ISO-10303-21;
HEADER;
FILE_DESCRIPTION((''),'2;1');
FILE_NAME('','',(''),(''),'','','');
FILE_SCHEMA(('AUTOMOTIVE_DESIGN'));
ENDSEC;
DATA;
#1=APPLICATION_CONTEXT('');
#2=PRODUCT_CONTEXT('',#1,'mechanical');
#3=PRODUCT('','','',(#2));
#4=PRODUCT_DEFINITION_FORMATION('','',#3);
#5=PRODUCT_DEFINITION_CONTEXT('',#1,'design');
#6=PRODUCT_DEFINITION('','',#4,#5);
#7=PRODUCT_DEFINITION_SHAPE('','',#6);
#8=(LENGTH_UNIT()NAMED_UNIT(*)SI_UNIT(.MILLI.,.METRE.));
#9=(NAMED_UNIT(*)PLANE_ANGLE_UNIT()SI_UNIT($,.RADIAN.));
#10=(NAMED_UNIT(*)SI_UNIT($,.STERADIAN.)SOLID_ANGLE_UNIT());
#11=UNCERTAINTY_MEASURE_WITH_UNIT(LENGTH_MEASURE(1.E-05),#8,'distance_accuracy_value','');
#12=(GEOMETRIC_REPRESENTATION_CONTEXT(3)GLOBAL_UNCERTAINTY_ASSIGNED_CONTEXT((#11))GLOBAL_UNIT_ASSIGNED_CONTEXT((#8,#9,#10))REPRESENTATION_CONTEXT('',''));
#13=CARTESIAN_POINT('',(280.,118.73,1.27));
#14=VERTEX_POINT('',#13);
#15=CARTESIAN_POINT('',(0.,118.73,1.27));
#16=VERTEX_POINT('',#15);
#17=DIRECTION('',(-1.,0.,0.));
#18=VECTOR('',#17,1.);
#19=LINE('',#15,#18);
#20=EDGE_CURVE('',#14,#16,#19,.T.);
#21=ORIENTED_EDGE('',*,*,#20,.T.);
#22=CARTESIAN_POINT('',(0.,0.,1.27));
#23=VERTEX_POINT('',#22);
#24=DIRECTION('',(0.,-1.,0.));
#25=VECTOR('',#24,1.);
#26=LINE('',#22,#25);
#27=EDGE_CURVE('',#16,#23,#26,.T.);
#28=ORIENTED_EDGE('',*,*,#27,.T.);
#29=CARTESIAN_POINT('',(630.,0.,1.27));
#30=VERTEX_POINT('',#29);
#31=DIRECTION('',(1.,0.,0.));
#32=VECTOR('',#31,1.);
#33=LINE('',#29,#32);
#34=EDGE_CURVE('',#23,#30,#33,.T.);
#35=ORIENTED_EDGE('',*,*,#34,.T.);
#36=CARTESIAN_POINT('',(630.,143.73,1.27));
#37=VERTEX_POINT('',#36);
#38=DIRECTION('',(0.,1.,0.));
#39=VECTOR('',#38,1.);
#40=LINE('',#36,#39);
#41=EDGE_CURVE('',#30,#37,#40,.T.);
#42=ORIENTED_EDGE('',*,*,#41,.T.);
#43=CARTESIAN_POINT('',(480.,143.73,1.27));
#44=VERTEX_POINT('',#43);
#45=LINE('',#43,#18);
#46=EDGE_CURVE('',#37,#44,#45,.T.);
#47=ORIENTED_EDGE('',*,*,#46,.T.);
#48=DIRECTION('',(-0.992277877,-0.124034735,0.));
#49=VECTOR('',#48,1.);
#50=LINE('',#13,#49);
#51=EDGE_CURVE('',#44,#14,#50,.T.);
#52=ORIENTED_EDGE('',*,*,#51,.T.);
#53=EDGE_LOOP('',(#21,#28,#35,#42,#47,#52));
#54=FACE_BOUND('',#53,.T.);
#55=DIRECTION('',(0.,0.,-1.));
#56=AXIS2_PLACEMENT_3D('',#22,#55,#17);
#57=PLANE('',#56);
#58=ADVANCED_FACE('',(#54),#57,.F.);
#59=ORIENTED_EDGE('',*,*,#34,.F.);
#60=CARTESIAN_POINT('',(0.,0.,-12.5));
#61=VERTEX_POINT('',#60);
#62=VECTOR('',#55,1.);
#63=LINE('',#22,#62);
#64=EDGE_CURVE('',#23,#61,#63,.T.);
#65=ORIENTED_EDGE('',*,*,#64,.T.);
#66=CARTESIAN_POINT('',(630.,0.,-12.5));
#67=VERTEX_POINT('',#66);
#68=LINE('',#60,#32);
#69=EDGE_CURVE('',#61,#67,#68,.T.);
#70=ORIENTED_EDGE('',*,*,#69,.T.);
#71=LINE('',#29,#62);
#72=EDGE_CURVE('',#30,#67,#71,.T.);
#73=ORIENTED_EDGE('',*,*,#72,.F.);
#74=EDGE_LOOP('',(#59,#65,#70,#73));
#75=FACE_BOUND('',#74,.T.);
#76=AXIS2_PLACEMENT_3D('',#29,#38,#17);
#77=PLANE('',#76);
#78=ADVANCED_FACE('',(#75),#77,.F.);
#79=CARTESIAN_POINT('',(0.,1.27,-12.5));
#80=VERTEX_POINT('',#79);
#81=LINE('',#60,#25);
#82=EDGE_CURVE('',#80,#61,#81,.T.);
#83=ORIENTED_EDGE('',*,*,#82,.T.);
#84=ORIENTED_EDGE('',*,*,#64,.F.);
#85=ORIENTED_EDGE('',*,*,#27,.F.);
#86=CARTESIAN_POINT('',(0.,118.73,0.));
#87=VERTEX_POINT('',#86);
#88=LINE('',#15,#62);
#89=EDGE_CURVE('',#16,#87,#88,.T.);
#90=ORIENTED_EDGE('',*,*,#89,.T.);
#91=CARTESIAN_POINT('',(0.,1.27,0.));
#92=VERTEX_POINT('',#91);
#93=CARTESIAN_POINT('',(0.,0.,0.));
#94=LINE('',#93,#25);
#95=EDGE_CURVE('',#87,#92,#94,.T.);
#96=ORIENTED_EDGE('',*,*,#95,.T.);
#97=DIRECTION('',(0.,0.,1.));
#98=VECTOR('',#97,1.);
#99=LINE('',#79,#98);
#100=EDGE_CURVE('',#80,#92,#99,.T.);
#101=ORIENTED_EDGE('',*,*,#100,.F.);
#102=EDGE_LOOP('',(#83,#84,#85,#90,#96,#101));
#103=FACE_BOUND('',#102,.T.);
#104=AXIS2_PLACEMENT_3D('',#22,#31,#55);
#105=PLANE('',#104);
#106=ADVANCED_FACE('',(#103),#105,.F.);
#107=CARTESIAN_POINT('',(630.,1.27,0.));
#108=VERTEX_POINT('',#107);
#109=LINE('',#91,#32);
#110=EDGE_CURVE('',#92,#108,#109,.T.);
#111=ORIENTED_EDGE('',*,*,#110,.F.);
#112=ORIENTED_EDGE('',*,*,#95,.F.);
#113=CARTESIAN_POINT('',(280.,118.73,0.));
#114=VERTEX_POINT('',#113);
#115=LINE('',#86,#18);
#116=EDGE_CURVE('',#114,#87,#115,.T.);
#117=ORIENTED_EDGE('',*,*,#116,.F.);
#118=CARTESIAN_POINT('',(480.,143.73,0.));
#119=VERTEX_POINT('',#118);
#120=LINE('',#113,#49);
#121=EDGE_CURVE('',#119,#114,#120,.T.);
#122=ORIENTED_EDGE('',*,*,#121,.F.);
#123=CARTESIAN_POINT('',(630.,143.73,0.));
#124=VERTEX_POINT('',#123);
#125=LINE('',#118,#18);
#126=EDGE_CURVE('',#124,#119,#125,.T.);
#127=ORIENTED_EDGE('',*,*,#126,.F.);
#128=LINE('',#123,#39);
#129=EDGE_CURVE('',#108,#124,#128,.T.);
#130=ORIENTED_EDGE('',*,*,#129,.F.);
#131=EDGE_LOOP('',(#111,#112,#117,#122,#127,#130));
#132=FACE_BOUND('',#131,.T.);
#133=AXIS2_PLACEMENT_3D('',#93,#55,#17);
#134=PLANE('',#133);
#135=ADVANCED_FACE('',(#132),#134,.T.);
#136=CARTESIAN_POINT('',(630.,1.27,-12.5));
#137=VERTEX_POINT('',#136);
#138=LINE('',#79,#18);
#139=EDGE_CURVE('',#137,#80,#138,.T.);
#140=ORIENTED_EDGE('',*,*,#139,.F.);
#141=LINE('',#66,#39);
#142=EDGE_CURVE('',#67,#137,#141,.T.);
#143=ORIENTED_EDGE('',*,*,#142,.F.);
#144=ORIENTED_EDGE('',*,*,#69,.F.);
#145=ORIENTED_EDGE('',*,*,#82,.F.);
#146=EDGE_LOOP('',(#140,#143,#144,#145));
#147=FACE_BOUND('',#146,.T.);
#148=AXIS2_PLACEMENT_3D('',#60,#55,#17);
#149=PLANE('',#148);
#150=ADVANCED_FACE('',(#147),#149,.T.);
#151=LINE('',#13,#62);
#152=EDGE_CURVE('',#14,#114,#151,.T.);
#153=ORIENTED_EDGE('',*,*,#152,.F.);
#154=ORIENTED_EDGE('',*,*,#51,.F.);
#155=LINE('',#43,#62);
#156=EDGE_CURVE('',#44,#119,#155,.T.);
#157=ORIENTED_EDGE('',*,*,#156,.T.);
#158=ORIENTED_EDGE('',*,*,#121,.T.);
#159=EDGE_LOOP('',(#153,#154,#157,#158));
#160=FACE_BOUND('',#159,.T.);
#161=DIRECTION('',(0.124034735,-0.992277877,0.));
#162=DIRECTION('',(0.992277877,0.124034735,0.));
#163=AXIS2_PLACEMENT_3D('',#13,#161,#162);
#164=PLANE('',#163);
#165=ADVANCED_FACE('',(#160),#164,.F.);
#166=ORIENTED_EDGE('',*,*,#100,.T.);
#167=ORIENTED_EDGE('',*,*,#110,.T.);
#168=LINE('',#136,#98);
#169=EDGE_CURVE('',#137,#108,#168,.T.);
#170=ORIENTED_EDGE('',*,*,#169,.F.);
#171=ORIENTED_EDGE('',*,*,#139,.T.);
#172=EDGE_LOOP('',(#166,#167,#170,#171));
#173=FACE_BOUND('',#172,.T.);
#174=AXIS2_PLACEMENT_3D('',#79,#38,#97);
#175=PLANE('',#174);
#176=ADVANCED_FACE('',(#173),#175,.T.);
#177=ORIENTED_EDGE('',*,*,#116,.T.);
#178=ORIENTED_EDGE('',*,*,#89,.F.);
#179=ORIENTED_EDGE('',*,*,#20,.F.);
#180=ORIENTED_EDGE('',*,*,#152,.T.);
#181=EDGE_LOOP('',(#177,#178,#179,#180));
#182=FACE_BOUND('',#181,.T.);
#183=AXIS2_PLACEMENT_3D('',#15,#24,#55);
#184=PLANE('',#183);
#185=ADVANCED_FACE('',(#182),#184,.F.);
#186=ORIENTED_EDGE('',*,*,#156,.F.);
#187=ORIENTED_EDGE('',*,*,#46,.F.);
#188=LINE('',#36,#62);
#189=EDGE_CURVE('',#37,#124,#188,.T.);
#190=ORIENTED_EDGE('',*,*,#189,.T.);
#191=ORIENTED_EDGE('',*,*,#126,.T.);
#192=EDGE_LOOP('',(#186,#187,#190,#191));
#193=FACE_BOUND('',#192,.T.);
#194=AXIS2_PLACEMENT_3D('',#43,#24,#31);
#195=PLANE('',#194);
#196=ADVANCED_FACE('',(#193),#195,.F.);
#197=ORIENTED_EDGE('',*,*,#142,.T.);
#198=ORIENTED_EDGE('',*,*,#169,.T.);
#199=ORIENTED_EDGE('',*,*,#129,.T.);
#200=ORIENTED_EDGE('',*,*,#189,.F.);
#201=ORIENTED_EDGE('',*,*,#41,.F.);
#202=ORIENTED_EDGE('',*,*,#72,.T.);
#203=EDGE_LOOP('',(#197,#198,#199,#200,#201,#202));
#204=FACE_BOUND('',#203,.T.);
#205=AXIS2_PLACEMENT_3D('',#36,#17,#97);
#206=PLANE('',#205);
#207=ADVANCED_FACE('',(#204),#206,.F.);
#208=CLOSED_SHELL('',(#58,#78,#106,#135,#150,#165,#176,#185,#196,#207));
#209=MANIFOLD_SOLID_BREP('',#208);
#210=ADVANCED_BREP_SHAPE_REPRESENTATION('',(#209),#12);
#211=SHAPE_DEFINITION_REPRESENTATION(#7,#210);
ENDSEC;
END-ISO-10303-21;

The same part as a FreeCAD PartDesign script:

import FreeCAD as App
import Part
import Sketcher

V = App.Vector


def add_polygon(sketch, points):
    """Adds a closed chain of lines whose ends are joined by coincident constraints."""
    first, n = sketch.GeometryCount, len(points)
    for a, b in zip(points, points[1:] + points[:1]):
        sketch.addGeometry(Part.LineSegment(App.Vector(*a, 0), App.Vector(*b, 0)), False)
    for i in range(n):
        sketch.addConstraint(Sketcher.Constraint("Coincident", first + i, 2, first + (i + 1) % n, 1))

doc = App.newDocument("Part")
params = doc.addObject("Spreadsheet::Sheet", "Params")
for row, (alias, value) in enumerate([
    ("sketch1_width", "630 mm"),
    ("sketch1_width2", "150 mm"),
    ("sketch1_width3", "280 mm"),
    ("sketch1_height", "118.73 mm"),
    ("pad1_length", "1.27 mm"),
    ("sketch2_width", "630 mm"),
    ("sketch2_height", "1.27 mm"),
    ("pad2_length", "13.77 mm"),
], start=1):
    params.set(f"A{row}", alias)
    params.set(f"B{row}", "=" + value)
    params.setAlias(f"B{row}", alias)

body = doc.addObject("PartDesign::Body", "Body")

sketch1 = body.newObject("Sketcher::SketchObject", "Sketch")
sketch1.AttachmentSupport = (doc.getObject("XY_Plane"), [""])
sketch1.MapMode = "FlatFace"
add_polygon(sketch1, [(0, 119), (0, 0), (630, 0), (630, 144), (480, 144), (280, 119)])
sketch1.addConstraint([
    Sketcher.Constraint("Vertical", 0),
    Sketcher.Constraint("Horizontal", 1),
    Sketcher.Constraint("Vertical", 2),
    Sketcher.Constraint("Horizontal", 3),
    Sketcher.Constraint("Horizontal", 5),
    Sketcher.Constraint("Coincident", 0, 2, -1, 1),
    Sketcher.Constraint("DistanceX", 1, 1, 1, 2, 630.0),
    Sketcher.Constraint("DistanceX", 3, 2, 3, 1, 150.0),
    Sketcher.Constraint("DistanceX", 5, 2, 5, 1, 280.0),
    Sketcher.Constraint("DistanceY", 4, 2, 3, 2, 25.0),
    Sketcher.Constraint("DistanceY", 0, 2, 0, 1, 118.73),
])
sketch1.setExpression("Constraints[12]", "Params.sketch1_width")
sketch1.setExpression("Constraints[13]", "Params.sketch1_width2")
sketch1.setExpression("Constraints[14]", "Params.sketch1_width3")
sketch1.setExpression("Constraints[16]", "Params.sketch1_height")
pad1 = body.newObject("PartDesign::Pad", "Pad")
pad1.Profile = sketch1
pad1.setExpression("Length", "Params.pad1_length")

sketch2 = body.newObject("Sketcher::SketchObject", "Sketch001")
sketch2.AttachmentSupport = (doc.getObject("XY_Plane"), [""])
sketch2.MapMode = "FlatFace"
sketch2.AttachmentOffset = App.Placement(V(0, 0, 1.27), App.Rotation())
add_polygon(sketch2, [(0, 1.3), (0, 0), (630, 0), (630, 1.3)])
sketch2.addConstraint([
    Sketcher.Constraint("Vertical", 0),
    Sketcher.Constraint("Horizontal", 1),
    Sketcher.Constraint("Vertical", 2),
    Sketcher.Constraint("Horizontal", 3),
    Sketcher.Constraint("Coincident", 0, 2, -1, 1),
    Sketcher.Constraint("DistanceX", 1, 1, 1, 2, 630.0),
    Sketcher.Constraint("DistanceY", 0, 2, 0, 1, 1.27),
])
sketch2.setExpression("Constraints[9]", "Params.sketch2_width")
sketch2.setExpression("Constraints[10]", "Params.sketch2_height")
pad2 = body.newObject("PartDesign::Pad", "Pad001")
pad2.Profile = sketch2
pad2.setExpression("Length", "Params.pad2_length")
pad2.Reversed = True

doc.recompute()
